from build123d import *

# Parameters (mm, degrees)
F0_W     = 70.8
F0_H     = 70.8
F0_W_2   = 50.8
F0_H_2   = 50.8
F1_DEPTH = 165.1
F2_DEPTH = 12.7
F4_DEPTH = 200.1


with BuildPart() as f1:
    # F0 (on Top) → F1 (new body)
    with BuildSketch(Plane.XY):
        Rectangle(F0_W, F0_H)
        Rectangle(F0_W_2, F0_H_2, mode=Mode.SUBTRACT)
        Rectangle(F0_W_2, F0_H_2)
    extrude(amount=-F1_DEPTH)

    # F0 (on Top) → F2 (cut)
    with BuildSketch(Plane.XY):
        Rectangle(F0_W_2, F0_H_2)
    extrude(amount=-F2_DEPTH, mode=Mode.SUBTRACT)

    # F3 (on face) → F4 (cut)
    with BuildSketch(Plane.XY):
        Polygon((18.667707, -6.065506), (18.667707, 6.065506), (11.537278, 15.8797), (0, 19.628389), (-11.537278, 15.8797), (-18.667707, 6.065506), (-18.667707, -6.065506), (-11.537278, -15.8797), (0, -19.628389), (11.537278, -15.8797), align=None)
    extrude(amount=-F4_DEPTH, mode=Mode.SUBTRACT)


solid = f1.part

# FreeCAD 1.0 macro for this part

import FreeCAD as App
import Part
import Sketcher
from FreeCAD import Vector
Q = App.Units.Quantity


def add_polygon(sketch, points):
    """Adds a closed chain of lines whose ends are joined by coincident constraints."""
    first, n = sketch.GeometryCount, len(points)
    for a, b in zip(points, points[1:] + points[:1]):
        sketch.addGeometry(Part.LineSegment(App.Vector(*a, 0), App.Vector(*b, 0)), False)
    for i in range(n):
        sketch.addConstraint(Sketcher.Constraint("Coincident", first + i, 2, first + (i + 1) % n, 1))

doc = App.newDocument("Part")
params = doc.addObject("Spreadsheet::Sheet", "Params")
for row, (alias, value) in enumerate([
    ("pad1_length", "6.5 in"),
    ("sketch2_width", "2 in"),
    ("pocket1_length", "0.5 in"),
    ("pocket2_length", "200.1 mm"),
], start=1):
    params.set(f"A{row}", alias)
    params.set(f"B{row}", "=" + value)
    params.setAlias(f"B{row}", alias)

body = doc.addObject("PartDesign::Body", "Body")

# Sketch on XY plane
sketch1 = doc.addObject("Sketcher::SketchObject", "Sketch")
body.addObject(sketch1)
sketch1.AttachmentSupport = (doc.XY_Plane, [""])
sketch1.MapMode = "FlatFace"
add_polygon(sketch1, [(-35, 35), (-35, -35), (35, -35), (35, 35)])  # lines 0-3
sketch1.addConstraint([
    Sketcher.Constraint("Vertical", 0),
    Sketcher.Constraint("Horizontal", 1),
    Sketcher.Constraint("Vertical", 2),
    Sketcher.Constraint("Horizontal", 3),
    Sketcher.Constraint("Symmetric", 0, 2, 2, 2, -1, 1),
    Sketcher.Constraint("Equal", 3, 0),
    Sketcher.Constraint("DistanceX", 1, 1, 1, 2, Q("70.8 mm")),
])
pad1 = doc.addObject("PartDesign::Pad", "Pad")
body.addObject(pad1)
pad1.Profile = sketch1
pad1.setExpression("Length", "Params.pad1_length")
pad1.Reversed = True

# Sketch on XY plane
sketch2 = doc.addObject("Sketcher::SketchObject", "Sketch001")
body.addObject(sketch2)
sketch2.AttachmentSupport = (doc.XY_Plane, [""])
sketch2.MapMode = "FlatFace"
add_polygon(sketch2, [(-25, 25), (-25, -25), (25, -25), (25, 25)])  # lines 0-3
sketch2.addConstraint([
    Sketcher.Constraint("Vertical", 0),
    Sketcher.Constraint("Horizontal", 1),
    Sketcher.Constraint("Vertical", 2),
    Sketcher.Constraint("Horizontal", 3),
    Sketcher.Constraint("Symmetric", 0, 2, 2, 2, -1, 1),
    Sketcher.Constraint("Equal", 3, 0),
    Sketcher.Constraint("DistanceX", 1, 1, 1, 2, Q("2 in")),
])
sketch2.setExpression("Constraints[10]", "Params.sketch2_width")
pocket1 = doc.addObject("PartDesign::Pocket", "Pocket")
body.addObject(pocket1)
pocket1.Profile = sketch2
pocket1.setExpression("Length", "Params.pocket1_length")

# Sketch on XY plane
sketch3 = doc.addObject("Sketcher::SketchObject", "Sketch002")
body.addObject(sketch3)
sketch3.AttachmentSupport = (doc.XY_Plane, [""])
sketch3.MapMode = "FlatFace"
add_polygon(sketch3, [(19, -6), (19, 6), (12, 16), (0, 20), (-12, 16), (-19, 6), (-19, -6), (-12, -16), (0, -20), (12, -16)])  # lines 0-9
sketch3.addConstraint([
    Sketcher.Constraint("Vertical", 0),
    Sketcher.Constraint("Vertical", 5),
    Sketcher.Constraint("Symmetric", 0, 2, 5, 2, -1, 1),
    Sketcher.Constraint("Symmetric", 1, 2, 6, 2, -1, 1),
    Sketcher.Constraint("Symmetric", 2, 2, 7, 2, -1, 1),
    Sketcher.Constraint("Symmetric", 3, 2, 8, 2, -1, 1),
    Sketcher.Constraint("Symmetric", 1, 2, 3, 2, -2),
    Sketcher.Constraint("PointOnObject", 2, 2, -2),
    Sketcher.Constraint("Parallel", 4, 9),
    Sketcher.Constraint("Horizontal", 0, 2, 4, 2),
    Sketcher.Constraint("Equal", 1, 2),
    Sketcher.Constraint("Angle", 1, Q("125.999999 deg")),
    Sketcher.Constraint("Angle", 2, Q("161.999999 deg")),
    Sketcher.Constraint("DistanceY", -1, 1, 1, 2, Q("15.8797 mm")),
    Sketcher.Constraint("Distance", 1, Q("12.131011 mm")),
])
pocket2 = doc.addObject("PartDesign::Pocket", "Pocket001")
body.addObject(pocket2)
pocket2.Profile = sketch3
pocket2.setExpression("Length", "Params.pocket2_length")

doc.recompute()
